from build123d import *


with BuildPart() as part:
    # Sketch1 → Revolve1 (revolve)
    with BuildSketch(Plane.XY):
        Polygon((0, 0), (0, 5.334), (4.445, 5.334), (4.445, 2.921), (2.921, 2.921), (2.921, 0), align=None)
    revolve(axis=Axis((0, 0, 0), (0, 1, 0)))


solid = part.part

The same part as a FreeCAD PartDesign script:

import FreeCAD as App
import Part
import Sketcher
from FreeCAD import Vector
Q = App.Units.Quantity


def add_polygon(sketch, points):
    """Adds a closed chain of lines whose ends are joined by coincident constraints."""
    first, n = sketch.GeometryCount, len(points)
    for a, b in zip(points, points[1:] + points[:1]):
        sketch.addGeometry(Part.LineSegment(App.Vector(*a, 0), App.Vector(*b, 0)), False)
    for i in range(n):
        sketch.addConstraint(Sketcher.Constraint("Coincident", first + i, 2, first + (i + 1) % n, 1))

doc = App.newDocument("Part")
body = doc.addObject("PartDesign::Body", "Body")

# Sketch on XY plane
sketch1 = doc.addObject("Sketcher::SketchObject", "Sketch")
body.addObject(sketch1)
sketch1.AttachmentSupport = (doc.XY_Plane, [""])
sketch1.MapMode = "FlatFace"
add_polygon(sketch1, [(0, 5.3), (0, 0), (2.9, 0), (2.9, 2.9), (4.4, 2.9), (4.4, 5.3)])  # lines 0-5
sketch1.addConstraint([
    Sketcher.Constraint("Vertical", 0),
    Sketcher.Constraint("Horizontal", 1),
    Sketcher.Constraint("Vertical", 2),
    Sketcher.Constraint("Horizontal", 3),
    Sketcher.Constraint("Vertical", 4),
    Sketcher.Constraint("Horizontal", 5),
    Sketcher.Constraint("Coincident", 0, 2, -1, 1),
    Sketcher.Constraint("Equal", 1, 2),
    Sketcher.Constraint("DistanceX", 3, 1, 3, 2, Q("0.06 in")),
    Sketcher.Constraint("DistanceY", 0, 2, 0, 1, Q("0.21 in")),
    Sketcher.Constraint("DistanceX", 1, 1, 1, 2, Q("0.115 in")),
])
revolution = doc.addObject("PartDesign::Revolution", "Revolution")
body.addObject(revolution)
revolution.Profile = sketch1
revolution.ReferenceAxis = (sketch1, ["V_Axis"])
revolution.Angle = 360

doc.recompute()
